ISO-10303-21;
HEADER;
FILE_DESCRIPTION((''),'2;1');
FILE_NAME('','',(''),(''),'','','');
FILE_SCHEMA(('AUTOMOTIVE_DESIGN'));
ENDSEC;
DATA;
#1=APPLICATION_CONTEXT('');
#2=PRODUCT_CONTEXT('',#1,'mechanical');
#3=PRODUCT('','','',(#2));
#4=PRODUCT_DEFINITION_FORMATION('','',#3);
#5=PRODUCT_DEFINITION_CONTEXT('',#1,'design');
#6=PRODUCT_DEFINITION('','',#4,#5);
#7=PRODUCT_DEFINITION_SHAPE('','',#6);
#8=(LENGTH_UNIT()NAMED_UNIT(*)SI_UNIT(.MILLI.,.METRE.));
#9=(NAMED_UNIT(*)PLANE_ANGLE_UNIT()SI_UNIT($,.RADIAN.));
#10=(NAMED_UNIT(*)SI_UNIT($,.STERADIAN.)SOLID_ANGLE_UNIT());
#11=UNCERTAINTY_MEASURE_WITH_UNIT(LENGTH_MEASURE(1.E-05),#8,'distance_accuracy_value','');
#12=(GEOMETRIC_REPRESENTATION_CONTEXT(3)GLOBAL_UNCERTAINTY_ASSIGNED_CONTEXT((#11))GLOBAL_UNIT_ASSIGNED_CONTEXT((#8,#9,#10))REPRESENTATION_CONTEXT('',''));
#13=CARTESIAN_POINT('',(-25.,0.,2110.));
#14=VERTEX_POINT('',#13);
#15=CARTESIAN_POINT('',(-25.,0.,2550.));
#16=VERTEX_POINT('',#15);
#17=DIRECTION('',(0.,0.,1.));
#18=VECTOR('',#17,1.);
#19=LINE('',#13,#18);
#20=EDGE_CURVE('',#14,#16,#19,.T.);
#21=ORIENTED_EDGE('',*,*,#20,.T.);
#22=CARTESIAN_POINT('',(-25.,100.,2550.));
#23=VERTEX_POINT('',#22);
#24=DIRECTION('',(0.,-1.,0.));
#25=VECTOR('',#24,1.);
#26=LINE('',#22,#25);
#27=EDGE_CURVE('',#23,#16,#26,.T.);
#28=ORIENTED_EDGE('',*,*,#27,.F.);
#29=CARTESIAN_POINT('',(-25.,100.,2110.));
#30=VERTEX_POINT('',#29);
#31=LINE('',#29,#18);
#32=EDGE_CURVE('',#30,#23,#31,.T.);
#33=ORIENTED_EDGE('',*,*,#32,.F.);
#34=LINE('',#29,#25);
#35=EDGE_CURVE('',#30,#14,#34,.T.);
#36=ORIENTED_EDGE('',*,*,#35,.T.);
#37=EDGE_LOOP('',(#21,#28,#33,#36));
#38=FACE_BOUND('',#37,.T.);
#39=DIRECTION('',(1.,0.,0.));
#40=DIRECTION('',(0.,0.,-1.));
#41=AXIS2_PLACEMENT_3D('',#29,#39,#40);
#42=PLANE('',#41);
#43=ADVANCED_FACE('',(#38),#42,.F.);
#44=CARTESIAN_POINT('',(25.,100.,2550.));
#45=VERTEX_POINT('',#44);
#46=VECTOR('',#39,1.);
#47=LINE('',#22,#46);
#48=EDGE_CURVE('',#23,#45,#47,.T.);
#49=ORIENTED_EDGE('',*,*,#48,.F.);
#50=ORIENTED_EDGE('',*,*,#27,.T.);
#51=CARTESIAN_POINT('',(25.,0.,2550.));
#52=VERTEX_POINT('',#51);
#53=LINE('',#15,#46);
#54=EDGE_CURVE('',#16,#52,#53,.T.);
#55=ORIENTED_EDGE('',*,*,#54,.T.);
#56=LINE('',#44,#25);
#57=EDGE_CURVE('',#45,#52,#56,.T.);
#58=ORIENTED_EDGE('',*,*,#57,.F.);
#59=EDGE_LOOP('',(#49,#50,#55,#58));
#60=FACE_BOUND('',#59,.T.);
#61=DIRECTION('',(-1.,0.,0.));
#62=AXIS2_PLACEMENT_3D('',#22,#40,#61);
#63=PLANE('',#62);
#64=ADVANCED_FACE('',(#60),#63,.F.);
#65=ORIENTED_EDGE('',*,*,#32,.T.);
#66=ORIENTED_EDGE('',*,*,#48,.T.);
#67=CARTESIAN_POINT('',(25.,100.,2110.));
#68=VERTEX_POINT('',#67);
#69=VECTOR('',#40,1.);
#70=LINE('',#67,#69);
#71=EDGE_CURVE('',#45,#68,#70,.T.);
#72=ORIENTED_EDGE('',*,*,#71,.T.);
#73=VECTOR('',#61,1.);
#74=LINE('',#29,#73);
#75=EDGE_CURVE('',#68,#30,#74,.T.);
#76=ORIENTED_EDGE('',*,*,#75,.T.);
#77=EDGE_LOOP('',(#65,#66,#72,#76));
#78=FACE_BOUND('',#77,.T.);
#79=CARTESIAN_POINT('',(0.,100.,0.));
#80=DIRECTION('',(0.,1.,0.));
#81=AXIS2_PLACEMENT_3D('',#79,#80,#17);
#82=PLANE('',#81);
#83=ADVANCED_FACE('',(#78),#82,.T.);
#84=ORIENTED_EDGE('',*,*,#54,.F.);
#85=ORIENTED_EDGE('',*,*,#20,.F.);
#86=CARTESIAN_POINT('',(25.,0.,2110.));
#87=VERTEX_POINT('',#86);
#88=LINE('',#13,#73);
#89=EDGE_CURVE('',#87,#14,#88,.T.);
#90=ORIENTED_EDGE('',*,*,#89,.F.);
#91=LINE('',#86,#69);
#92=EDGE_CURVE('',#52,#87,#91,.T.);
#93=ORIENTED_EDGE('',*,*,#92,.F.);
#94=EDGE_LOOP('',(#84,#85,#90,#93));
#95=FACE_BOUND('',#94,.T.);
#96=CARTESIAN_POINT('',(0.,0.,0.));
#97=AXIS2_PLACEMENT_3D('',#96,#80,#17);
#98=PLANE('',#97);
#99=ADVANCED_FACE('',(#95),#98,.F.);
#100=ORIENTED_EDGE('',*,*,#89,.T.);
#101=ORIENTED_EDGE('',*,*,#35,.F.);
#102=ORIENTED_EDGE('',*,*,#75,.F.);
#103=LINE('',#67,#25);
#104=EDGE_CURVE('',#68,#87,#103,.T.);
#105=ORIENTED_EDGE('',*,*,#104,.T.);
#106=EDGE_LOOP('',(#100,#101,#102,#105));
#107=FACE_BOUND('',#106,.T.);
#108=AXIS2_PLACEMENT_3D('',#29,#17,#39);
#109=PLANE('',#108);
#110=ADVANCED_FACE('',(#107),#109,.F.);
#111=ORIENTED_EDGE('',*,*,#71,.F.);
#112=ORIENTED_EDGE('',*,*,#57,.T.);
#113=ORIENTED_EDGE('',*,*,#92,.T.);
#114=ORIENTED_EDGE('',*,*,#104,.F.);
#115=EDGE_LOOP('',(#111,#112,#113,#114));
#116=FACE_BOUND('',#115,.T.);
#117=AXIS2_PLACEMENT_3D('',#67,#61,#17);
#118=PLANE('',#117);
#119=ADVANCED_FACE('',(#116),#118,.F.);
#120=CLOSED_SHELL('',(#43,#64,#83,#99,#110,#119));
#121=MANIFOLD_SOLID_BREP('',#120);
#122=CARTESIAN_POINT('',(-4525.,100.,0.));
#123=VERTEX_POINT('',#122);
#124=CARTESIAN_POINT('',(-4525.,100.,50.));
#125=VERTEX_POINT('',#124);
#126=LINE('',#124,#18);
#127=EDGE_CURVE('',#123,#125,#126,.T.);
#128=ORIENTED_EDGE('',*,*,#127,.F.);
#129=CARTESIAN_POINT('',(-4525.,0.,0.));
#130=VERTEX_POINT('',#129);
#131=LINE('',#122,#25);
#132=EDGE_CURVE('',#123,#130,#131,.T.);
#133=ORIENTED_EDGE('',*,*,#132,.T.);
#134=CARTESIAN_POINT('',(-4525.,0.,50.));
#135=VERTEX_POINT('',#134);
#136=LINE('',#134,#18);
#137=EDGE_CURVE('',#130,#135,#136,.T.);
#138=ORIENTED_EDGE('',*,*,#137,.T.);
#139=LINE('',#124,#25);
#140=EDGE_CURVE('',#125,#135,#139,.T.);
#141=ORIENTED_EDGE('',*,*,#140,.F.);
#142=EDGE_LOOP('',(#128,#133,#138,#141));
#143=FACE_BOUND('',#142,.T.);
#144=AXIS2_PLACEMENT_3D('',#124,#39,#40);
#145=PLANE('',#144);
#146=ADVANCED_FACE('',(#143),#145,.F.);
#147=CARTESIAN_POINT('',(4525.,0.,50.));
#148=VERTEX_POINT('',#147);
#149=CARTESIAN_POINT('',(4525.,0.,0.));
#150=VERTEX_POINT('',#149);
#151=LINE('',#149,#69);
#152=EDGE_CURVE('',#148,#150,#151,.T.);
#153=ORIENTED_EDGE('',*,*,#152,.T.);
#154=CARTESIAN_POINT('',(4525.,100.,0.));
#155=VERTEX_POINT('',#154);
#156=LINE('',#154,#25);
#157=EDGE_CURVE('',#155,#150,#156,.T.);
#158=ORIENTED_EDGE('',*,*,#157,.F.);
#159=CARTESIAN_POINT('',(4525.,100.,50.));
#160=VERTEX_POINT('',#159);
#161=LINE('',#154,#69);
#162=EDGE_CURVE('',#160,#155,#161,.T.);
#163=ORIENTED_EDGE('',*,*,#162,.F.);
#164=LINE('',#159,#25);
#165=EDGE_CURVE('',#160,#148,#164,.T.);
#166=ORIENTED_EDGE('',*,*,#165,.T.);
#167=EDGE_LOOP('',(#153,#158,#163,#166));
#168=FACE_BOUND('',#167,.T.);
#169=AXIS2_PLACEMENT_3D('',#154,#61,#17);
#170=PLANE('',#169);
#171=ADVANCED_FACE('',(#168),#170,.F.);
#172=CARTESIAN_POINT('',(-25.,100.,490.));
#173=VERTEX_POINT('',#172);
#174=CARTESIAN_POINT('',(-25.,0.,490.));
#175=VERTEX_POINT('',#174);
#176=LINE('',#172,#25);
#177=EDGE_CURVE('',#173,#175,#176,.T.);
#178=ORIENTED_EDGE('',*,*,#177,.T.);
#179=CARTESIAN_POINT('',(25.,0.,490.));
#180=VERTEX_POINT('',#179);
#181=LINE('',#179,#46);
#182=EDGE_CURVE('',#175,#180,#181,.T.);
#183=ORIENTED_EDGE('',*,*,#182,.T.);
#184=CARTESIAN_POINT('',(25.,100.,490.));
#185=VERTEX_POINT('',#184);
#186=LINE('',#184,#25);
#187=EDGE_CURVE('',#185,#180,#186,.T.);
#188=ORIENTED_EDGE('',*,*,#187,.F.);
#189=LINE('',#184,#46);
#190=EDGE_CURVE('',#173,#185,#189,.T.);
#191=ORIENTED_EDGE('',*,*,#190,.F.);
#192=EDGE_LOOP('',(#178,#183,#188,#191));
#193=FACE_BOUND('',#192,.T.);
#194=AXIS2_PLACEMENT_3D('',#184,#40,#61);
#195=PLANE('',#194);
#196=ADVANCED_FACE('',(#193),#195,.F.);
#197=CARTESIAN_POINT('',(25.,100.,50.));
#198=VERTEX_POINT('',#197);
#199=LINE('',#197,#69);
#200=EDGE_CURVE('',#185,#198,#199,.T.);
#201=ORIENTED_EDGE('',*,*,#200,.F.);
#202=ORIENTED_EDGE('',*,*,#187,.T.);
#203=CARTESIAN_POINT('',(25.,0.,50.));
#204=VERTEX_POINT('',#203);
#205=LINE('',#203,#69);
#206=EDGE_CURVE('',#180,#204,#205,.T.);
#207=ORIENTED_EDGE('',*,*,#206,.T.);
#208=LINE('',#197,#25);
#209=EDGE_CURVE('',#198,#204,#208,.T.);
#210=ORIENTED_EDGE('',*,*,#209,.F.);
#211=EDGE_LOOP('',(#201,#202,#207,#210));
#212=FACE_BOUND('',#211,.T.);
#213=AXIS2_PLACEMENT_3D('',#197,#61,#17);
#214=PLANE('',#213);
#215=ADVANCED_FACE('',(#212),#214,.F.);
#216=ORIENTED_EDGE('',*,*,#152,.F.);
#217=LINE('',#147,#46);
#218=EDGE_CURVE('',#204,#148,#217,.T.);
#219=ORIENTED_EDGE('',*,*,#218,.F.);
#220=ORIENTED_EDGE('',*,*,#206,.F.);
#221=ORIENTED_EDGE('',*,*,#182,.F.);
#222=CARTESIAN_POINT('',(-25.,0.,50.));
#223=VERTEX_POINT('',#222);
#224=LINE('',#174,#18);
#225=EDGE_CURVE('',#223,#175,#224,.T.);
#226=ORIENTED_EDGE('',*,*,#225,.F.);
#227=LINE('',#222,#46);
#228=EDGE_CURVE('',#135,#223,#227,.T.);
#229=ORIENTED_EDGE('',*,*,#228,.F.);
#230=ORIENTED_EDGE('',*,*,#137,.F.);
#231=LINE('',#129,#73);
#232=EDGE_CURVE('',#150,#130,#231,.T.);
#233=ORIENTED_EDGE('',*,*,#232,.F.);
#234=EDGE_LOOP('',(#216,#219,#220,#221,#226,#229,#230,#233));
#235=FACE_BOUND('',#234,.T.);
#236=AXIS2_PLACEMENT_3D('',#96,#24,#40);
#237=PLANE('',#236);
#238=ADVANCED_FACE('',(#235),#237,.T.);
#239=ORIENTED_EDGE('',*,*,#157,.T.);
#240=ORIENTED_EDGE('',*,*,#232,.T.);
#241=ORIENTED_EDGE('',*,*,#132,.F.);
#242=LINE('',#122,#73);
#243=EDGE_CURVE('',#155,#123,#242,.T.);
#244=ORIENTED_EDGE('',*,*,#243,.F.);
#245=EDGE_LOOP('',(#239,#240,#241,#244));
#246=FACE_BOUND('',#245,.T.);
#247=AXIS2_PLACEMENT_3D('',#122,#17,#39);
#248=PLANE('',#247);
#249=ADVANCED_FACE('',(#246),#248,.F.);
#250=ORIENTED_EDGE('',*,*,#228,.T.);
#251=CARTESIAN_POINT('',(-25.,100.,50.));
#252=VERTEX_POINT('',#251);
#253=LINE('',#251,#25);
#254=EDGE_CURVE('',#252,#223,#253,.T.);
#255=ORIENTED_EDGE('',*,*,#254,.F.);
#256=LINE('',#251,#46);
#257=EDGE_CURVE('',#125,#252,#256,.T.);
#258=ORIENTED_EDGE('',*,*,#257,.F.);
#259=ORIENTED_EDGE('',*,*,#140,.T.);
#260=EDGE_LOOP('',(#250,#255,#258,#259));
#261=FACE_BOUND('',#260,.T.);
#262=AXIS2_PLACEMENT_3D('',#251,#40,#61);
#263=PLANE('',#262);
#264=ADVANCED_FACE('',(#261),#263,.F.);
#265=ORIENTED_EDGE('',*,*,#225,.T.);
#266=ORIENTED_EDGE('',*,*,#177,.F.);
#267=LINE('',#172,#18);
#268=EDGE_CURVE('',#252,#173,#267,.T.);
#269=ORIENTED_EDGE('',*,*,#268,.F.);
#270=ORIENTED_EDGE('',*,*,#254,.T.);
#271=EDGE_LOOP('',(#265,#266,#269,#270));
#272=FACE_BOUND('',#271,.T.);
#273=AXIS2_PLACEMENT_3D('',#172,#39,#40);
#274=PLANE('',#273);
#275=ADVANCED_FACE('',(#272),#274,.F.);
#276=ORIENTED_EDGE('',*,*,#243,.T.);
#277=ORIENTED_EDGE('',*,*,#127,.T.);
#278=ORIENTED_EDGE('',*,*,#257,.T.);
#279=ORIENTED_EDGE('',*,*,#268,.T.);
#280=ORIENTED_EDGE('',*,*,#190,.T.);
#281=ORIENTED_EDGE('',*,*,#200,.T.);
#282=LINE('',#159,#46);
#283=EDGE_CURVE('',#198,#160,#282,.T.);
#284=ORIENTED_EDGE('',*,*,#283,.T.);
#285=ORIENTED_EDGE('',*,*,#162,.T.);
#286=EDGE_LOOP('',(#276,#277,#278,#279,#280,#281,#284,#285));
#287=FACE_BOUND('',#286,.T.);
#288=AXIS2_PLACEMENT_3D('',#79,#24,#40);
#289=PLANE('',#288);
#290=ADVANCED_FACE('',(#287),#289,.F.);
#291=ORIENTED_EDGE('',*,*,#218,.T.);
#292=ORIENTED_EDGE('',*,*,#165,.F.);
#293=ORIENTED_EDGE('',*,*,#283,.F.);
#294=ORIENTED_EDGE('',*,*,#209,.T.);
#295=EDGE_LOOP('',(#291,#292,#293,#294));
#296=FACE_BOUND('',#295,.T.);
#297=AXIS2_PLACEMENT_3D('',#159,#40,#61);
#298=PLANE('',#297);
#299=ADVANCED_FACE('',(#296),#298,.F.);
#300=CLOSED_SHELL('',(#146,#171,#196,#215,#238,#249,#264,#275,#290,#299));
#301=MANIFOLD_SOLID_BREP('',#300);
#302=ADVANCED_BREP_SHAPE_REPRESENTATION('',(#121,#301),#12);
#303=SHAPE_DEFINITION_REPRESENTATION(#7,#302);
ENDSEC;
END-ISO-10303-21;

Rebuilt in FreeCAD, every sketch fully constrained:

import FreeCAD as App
import Part
import Sketcher
from FreeCAD import Vector
Q = App.Units.Quantity

doc = App.newDocument("Part")
body = doc.addObject("PartDesign::Body", "Body")

# Sketch on XZ plane
sketch1 = doc.addObject("Sketcher::SketchObject", "Sketch")
body.addObject(sketch1)
sketch1.AttachmentSupport = (doc.XZ_Plane, [""])
sketch1.MapMode = "FlatFace"
sketch1.addGeometry(Part.LineSegment(Vector(4525, 0, 0), Vector(-4525, 0, 0)), False)
sketch1.addGeometry(Part.LineSegment(Vector(-4525, 0, 0), Vector(-4525, 50, 0)), False)
sketch1.addGeometry(Part.LineSegment(Vector(-4525, 50, 0), Vector(-25, 50, 0)), False)
sketch1.addGeometry(Part.LineSegment(Vector(-25, 50, 0), Vector(-25, 490, 0)), False)
sketch1.addGeometry(Part.LineSegment(Vector(-25, 490, 0), Vector(25, 490, 0)), False)
sketch1.addGeometry(Part.LineSegment(Vector(25, 490, 0), Vector(25, 50, 0)), False)
sketch1.addGeometry(Part.LineSegment(Vector(25, 50, 0), Vector(4525, 50, 0)), False)
sketch1.addGeometry(Part.LineSegment(Vector(4525, 50, 0), Vector(4525, 0, 0)), False)
sketch1.addConstraint(Sketcher.Constraint("Coincident", 0, 2, 1, 1))
sketch1.addConstraint(Sketcher.Constraint("Coincident", 1, 2, 2, 1))
sketch1.addConstraint(Sketcher.Constraint("Coincident", 2, 2, 3, 1))
sketch1.addConstraint(Sketcher.Constraint("Coincident", 3, 2, 4, 1))
sketch1.addConstraint(Sketcher.Constraint("Coincident", 4, 2, 5, 1))
sketch1.addConstraint(Sketcher.Constraint("Coincident", 5, 2, 6, 1))
sketch1.addConstraint(Sketcher.Constraint("Coincident", 6, 2, 7, 1))
sketch1.addConstraint(Sketcher.Constraint("Coincident", 7, 2, 0, 1))
sketch1.addConstraint(Sketcher.Constraint("Horizontal", 0))
sketch1.addConstraint(Sketcher.Constraint("Vertical", 1))
sketch1.addConstraint(Sketcher.Constraint("Horizontal", 2))
sketch1.addConstraint(Sketcher.Constraint("Vertical", 3))
sketch1.addConstraint(Sketcher.Constraint("Horizontal", 4))
sketch1.addConstraint(Sketcher.Constraint("Vertical", 5))
sketch1.addConstraint(Sketcher.Constraint("Horizontal", 6))
sketch1.addConstraint(Sketcher.Constraint("Vertical", 7))
sketch1.addConstraint(Sketcher.Constraint("Symmetric", 0, 2, 7, 2, -1, 1))
sketch1.addConstraint(Sketcher.Constraint("Symmetric", 2, 2, 5, 2, -2))
sketch1.addConstraint(Sketcher.Constraint("Equal", 4, 1))
sketch1.addConstraint(Sketcher.Constraint("DistanceX", 0, 2, 0, 1, Q("9050 mm")))
sketch1.addConstraint(Sketcher.Constraint("DistanceX", 2, 1, 2, 2, Q("4500 mm")))
sketch1.addConstraint(Sketcher.Constraint("DistanceY", 3, 1, 3, 2, Q("440 mm")))
pad1 = doc.addObject("PartDesign::Pad", "Pad")
body.addObject(pad1)
pad1.Profile = sketch1
pad1.Length = 100
pad1.Reversed = True
body2 = doc.addObject("PartDesign::Body", "Body001")

# Sketch on XZ plane
sketch2 = doc.addObject("Sketcher::SketchObject", "Sketch001")
body2.addObject(sketch2)
sketch2.AttachmentSupport = (doc.getObject("XZ_Plane001"), [""])
sketch2.MapMode = "FlatFace"
sketch2.addGeometry(Part.LineSegment(Vector(-25, 2110, 0), Vector(-25, 2550, 0)), False)
sketch2.addGeometry(Part.LineSegment(Vector(-25, 2550, 0), Vector(25, 2550, 0)), False)
sketch2.addGeometry(Part.LineSegment(Vector(25, 2550, 0), Vector(25, 2110, 0)), False)
sketch2.addGeometry(Part.LineSegment(Vector(25, 2110, 0), Vector(-25, 2110, 0)), False)
sketch2.addConstraint(Sketcher.Constraint("Coincident", 0, 2, 1, 1))
sketch2.addConstraint(Sketcher.Constraint("Coincident", 1, 2, 2, 1))
sketch2.addConstraint(Sketcher.Constraint("Coincident", 2, 2, 3, 1))
sketch2.addConstraint(Sketcher.Constraint("Coincident", 3, 2, 0, 1))
sketch2.addConstraint(Sketcher.Constraint("Vertical", 0))
sketch2.addConstraint(Sketcher.Constraint("Horizontal", 1))
sketch2.addConstraint(Sketcher.Constraint("Vertical", 2))
sketch2.addConstraint(Sketcher.Constraint("Horizontal", 3))
sketch2.addConstraint(Sketcher.Constraint("DistanceX", 1, 1, 1, 2, Q("50 mm")))
sketch2.addConstraint(Sketcher.Constraint("DistanceY", 0, 1, 0, 2, Q("440 mm")))
sketch2.addConstraint(Sketcher.Constraint("DistanceX", 0, 2, -1, 1, Q("25 mm")))
sketch2.addConstraint(Sketcher.Constraint("DistanceY", -1, 1, 0, 2, Q("2550 mm")))
pad2 = doc.addObject("PartDesign::Pad", "Pad001")
body2.addObject(pad2)
pad2.Profile = sketch2
pad2.Length = 100
pad2.Reversed = True

doc.recompute()
